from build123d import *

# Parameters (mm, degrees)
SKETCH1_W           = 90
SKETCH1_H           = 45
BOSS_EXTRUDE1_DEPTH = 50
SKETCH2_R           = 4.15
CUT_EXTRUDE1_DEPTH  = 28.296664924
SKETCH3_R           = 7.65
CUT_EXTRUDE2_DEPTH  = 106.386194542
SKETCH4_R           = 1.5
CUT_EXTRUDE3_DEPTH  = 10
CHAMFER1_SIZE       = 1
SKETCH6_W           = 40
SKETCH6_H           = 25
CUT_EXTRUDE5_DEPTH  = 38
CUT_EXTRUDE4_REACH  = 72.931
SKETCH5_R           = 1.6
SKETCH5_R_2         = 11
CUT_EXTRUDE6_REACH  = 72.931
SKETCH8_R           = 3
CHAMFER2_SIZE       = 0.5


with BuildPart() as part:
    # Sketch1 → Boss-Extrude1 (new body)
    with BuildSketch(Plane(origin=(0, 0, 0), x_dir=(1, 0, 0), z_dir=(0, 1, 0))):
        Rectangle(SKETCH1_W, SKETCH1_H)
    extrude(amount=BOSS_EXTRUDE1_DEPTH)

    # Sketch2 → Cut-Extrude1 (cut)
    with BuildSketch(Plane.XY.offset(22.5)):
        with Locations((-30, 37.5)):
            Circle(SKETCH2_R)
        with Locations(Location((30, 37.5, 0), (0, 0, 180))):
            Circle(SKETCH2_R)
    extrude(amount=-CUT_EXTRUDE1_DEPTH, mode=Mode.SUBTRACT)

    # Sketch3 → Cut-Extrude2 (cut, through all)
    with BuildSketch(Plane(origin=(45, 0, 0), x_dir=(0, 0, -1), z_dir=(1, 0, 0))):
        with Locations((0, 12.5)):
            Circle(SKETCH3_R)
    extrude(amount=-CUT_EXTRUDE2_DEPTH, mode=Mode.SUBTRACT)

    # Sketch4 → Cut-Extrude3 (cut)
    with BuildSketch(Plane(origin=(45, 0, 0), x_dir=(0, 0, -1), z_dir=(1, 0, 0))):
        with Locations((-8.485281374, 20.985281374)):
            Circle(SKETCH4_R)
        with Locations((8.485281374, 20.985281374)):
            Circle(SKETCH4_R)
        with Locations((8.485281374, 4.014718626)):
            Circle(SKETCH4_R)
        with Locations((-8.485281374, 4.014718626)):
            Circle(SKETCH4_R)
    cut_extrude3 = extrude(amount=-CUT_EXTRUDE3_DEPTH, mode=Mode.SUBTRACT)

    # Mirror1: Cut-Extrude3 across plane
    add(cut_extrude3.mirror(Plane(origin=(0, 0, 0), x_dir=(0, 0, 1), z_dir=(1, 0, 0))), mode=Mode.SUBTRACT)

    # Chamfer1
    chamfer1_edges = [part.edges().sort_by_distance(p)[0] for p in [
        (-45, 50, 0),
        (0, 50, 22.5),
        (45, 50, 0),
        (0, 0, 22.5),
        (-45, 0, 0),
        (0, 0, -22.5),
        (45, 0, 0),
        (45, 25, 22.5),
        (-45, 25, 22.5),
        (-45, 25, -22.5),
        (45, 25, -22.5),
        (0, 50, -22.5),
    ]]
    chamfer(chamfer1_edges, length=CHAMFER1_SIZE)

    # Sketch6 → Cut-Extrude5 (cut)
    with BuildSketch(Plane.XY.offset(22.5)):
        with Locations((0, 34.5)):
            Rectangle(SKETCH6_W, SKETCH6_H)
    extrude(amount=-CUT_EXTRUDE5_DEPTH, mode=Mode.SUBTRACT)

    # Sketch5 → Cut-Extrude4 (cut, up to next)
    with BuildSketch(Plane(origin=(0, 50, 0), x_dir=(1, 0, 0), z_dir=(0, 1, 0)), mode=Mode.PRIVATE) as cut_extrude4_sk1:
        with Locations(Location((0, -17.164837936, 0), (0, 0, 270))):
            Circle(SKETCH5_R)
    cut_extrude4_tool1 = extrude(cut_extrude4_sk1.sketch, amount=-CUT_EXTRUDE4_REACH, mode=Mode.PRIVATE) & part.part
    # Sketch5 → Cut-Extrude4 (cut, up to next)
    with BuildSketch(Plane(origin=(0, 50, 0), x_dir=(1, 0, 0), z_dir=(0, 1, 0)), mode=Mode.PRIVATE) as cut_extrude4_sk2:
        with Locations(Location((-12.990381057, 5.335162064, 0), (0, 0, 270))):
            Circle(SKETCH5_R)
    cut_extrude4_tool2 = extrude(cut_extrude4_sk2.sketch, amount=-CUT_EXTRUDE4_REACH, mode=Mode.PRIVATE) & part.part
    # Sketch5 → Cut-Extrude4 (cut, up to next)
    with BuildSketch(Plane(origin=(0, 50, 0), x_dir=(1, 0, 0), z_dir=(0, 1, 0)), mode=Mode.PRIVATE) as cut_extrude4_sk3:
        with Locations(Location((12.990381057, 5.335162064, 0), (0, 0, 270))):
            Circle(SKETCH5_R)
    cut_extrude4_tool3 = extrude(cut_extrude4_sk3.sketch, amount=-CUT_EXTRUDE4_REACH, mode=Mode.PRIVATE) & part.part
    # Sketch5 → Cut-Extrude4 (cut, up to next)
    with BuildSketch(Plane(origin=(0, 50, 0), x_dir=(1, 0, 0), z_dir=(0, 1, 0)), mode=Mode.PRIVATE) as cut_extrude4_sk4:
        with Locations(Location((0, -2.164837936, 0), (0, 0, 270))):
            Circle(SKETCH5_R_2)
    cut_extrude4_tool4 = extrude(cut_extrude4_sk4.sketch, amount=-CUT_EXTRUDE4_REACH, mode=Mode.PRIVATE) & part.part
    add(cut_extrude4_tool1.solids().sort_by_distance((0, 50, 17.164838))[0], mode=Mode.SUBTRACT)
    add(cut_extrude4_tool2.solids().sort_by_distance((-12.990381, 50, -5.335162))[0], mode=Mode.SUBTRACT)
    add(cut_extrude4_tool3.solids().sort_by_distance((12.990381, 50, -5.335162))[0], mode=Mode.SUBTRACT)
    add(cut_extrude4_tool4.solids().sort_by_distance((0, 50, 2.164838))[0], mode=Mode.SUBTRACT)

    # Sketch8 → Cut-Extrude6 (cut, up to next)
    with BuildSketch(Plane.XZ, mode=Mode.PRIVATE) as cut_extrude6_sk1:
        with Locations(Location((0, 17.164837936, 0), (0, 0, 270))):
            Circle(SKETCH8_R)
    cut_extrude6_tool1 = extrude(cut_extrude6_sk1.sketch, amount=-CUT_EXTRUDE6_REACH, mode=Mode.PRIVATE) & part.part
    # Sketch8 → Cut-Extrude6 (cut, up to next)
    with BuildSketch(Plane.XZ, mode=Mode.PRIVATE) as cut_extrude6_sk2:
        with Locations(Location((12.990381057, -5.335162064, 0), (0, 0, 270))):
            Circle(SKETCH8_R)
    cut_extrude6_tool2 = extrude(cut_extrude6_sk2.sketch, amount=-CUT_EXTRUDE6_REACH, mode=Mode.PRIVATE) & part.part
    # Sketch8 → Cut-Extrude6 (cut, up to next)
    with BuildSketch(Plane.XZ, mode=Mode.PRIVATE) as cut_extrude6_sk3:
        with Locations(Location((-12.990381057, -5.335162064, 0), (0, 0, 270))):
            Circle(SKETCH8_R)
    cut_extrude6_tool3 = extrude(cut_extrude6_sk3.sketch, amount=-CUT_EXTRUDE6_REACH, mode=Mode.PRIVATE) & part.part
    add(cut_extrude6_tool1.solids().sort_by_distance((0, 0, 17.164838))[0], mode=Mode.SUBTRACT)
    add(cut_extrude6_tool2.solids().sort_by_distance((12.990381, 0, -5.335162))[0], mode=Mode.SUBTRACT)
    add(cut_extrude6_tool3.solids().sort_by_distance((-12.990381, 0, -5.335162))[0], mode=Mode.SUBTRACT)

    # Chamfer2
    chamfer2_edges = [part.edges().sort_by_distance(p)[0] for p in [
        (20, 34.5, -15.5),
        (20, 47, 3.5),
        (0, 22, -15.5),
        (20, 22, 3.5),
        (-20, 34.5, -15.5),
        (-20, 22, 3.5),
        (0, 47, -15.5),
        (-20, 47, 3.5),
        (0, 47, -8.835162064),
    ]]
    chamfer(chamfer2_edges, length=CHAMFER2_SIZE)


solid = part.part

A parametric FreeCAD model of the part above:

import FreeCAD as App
import Part
import Sketcher

V = App.Vector
Q = App.Units.Quantity


def edges_at(feature, points):
    """Names of the edges that pass closest to the given points."""
    edges = feature.Shape.Edges
    near = lambda p: min(range(len(edges)), key=lambda i: edges[i].distToShape(Part.Vertex(*p))[0])
    return sorted({f"Edge{near(p) + 1}" for p in points})


def add_polygon(sketch, points):
    """Adds a closed chain of lines whose ends are joined by coincident constraints."""
    first, n = sketch.GeometryCount, len(points)
    for a, b in zip(points, points[1:] + points[:1]):
        sketch.addGeometry(Part.LineSegment(App.Vector(*a, 0), App.Vector(*b, 0)), False)
    for i in range(n):
        sketch.addConstraint(Sketcher.Constraint("Coincident", first + i, 2, first + (i + 1) % n, 1))

doc = App.newDocument("Part")
body = doc.addObject("PartDesign::Body", "Body")

sketch1 = body.newObject("Sketcher::SketchObject", "Sketch")
sketch1.AttachmentSupport = (doc.getObject("XZ_Plane"), [""])
sketch1.MapMode = "FlatFace"
add_polygon(sketch1, [(-45, -22), (-45, 22), (45, 22), (45, -22)])
sketch1.addConstraint(Sketcher.Constraint("Vertical", 0))
sketch1.addConstraint(Sketcher.Constraint("Horizontal", 1))
sketch1.addConstraint(Sketcher.Constraint("Vertical", 2))
sketch1.addConstraint(Sketcher.Constraint("Horizontal", 3))
sketch1.addConstraint(Sketcher.Constraint("Symmetric", 0, 2, 2, 2, -1, 1))
sketch1.addConstraint(Sketcher.Constraint("DistanceX", 1, 1, 1, 2, Q("90 mm")))
sketch1.addConstraint(Sketcher.Constraint("DistanceY", 0, 1, 0, 2, Q("45 mm")))
pad1 = body.newObject("PartDesign::Pad", "Pad")
pad1.Profile = sketch1
pad1.Length = 50
pad1.Reversed = True

sketch2 = body.newObject("Sketcher::SketchObject", "Sketch001")
sketch2.AttachmentSupport = (doc.getObject("XY_Plane"), [""])
sketch2.MapMode = "FlatFace"
sketch2.AttachmentOffset = App.Placement(V(0, 0, 22.5), App.Rotation())
sketch2.addGeometry(Part.Circle(V(-30, 37.5, 0), V(0, 0, 1), 4.2), False)
sketch2.addGeometry(Part.Circle(V(30, 37.5, 0), V(0, 0, 1), 4.2), False)
sketch2.addConstraint(Sketcher.Constraint("Equal", 0, 1))
sketch2.addConstraint(Sketcher.Constraint("Symmetric", 0, 3, 1, 3, -2))
sketch2.addConstraint(Sketcher.Constraint("Diameter", 0, Q("8.3 mm")))
sketch2.addConstraint(Sketcher.Constraint("DistanceX", 0, 3, -1, 1, Q("30 mm")))
sketch2.addConstraint(Sketcher.Constraint("DistanceY", -1, 1, 0, 3, Q("37.5 mm")))
pocket1 = body.newObject("PartDesign::Pocket", "Pocket")
pocket1.Profile = sketch2
pocket1.Length = 28.296665

sketch3 = body.newObject("Sketcher::SketchObject", "Sketch002")
sketch3.AttachmentSupport = (doc.getObject("YZ_Plane"), [""])
sketch3.MapMode = "FlatFace"
sketch3.AttachmentOffset = App.Placement(V(0, 0, 45), App.Rotation())
sketch3.addGeometry(Part.Circle(V(12, 0, 0), V(0, 0, 1), 8), False)
sketch3.addConstraint(Sketcher.Constraint("PointOnObject", 0, 3, -1))
sketch3.addConstraint(Sketcher.Constraint("Diameter", 0, Q("15.3 mm")))
sketch3.addConstraint(Sketcher.Constraint("DistanceX", -1, 1, 0, 3, Q("12.5 mm")))
pocket2 = body.newObject("PartDesign::Pocket", "Pocket001")
pocket2.Profile = sketch3
pocket2.Type = "ThroughAll"

sketch4 = body.newObject("Sketcher::SketchObject", "Sketch003")
sketch4.AttachmentSupport = (doc.getObject("YZ_Plane"), [""])
sketch4.MapMode = "FlatFace"
sketch4.AttachmentOffset = App.Placement(V(0, 0, 45), App.Rotation())
sketch4.addGeometry(Part.Circle(V(21, 8.5, 0), V(0, 0, 1), 1.5), False)
sketch4.addGeometry(Part.Circle(V(21, -8.5, 0), V(0, 0, 1), 1.5), False)
sketch4.addGeometry(Part.Circle(V(4, -8.5, 0), V(0, 0, 1), 1.5), False)
sketch4.addGeometry(Part.Circle(V(4, 8.5, 0), V(0, 0, 1), 1.5), False)
sketch4.addConstraint(Sketcher.Constraint("Equal", 0, 1))
sketch4.addConstraint(Sketcher.Constraint("Equal", 1, 2))
sketch4.addConstraint(Sketcher.Constraint("Equal", 2, 3))
sketch4.addConstraint(Sketcher.Constraint("Symmetric", 0, 3, 1, 3, -1))
sketch4.addConstraint(Sketcher.Constraint("Symmetric", 2, 3, 3, 3, -1))
sketch4.addConstraint(Sketcher.Constraint("Horizontal", 1, 3, 2, 3))
sketch4.addConstraint(Sketcher.Constraint("Diameter", 0, Q("3 mm")))
sketch4.addConstraint(Sketcher.Constraint("DistanceX", -1, 1, 0, 3, Q("20.985281 mm")))
sketch4.addConstraint(Sketcher.Constraint("DistanceY", -1, 1, 0, 3, Q("8.485281 mm")))
sketch4.addConstraint(Sketcher.Constraint("DistanceX", -1, 1, 2, 3, Q("4.014719 mm")))
pocket3 = body.newObject("PartDesign::Pocket", "Pocket002")
pocket3.Profile = sketch4
pocket3.Length = 10
doc.recompute()

mirrored = body.newObject("PartDesign::Mirrored", "Mirrored")
mirrored.Originals = [pocket3]
mirrored.MirrorPlane = (doc.getObject("YZ_Plane"), [""])
body.Tip = mirrored
doc.recompute()

chamfer = body.newObject("PartDesign::Chamfer", "Chamfer")
chamfer.Base = (mirrored, edges_at(mirrored, [
    (-45, 50, 0),
    (0, 50, 22.5),
    (45, 50, 0),
    (0, 0, 22.5),
    (-45, 0, 0),
    (0, 0, -22.5),
    (45, 0, 0),
    (45, 25, 22.5),
    (-45, 25, 22.5),
    (-45, 25, -22.5),
    (45, 25, -22.5),
    (0, 50, -22.5),
]))
chamfer.Size = 1

sketch5 = body.newObject("Sketcher::SketchObject", "Sketch004")
sketch5.AttachmentSupport = (doc.getObject("XY_Plane"), [""])
sketch5.MapMode = "FlatFace"
sketch5.AttachmentOffset = App.Placement(V(0, 0, 22.5), App.Rotation())
add_polygon(sketch5, [(-20, 47), (-20, 22), (20, 22), (20, 47)])
sketch5.addConstraint(Sketcher.Constraint("Vertical", 0))
sketch5.addConstraint(Sketcher.Constraint("Horizontal", 1))
sketch5.addConstraint(Sketcher.Constraint("Vertical", 2))
sketch5.addConstraint(Sketcher.Constraint("Horizontal", 3))
sketch5.addConstraint(Sketcher.Constraint("DistanceX", 1, 1, 1, 2, Q("40 mm")))
sketch5.addConstraint(Sketcher.Constraint("DistanceY", 0, 2, 0, 1, Q("25 mm")))
sketch5.addConstraint(Sketcher.Constraint("DistanceX", 0, 2, -1, 1, Q("20 mm")))
sketch5.addConstraint(Sketcher.Constraint("DistanceY", -1, 1, 0, 2, Q("22 mm")))
pocket4 = body.newObject("PartDesign::Pocket", "Pocket003")
pocket4.Profile = sketch5
pocket4.Length = 38

sketch6 = body.newObject("Sketcher::SketchObject", "Sketch005")
sketch6.AttachmentSupport = (doc.getObject("XZ_Plane"), [""])
sketch6.MapMode = "FlatFace"
sketch6.AttachmentOffset = App.Placement(V(0, 0, -50), App.Rotation())
sketch6.addGeometry(Part.Circle(V(0, 17.2, 0), V(0, 0, 1), 1.6), False)
sketch6.addConstraint(Sketcher.Constraint("PointOnObject", 0, 3, -2))
sketch6.addConstraint(Sketcher.Constraint("Diameter", 0, Q("3.2 mm")))
sketch6.addConstraint(Sketcher.Constraint("DistanceY", -1, 1, 0, 3, Q("17.164838 mm")))
pocket5 = body.newObject("PartDesign::Pocket", "Pocket004")
pocket5.Profile = sketch6
pocket5.Type = "UpToFirst"
pocket5.Reversed = True

sketch7 = body.newObject("Sketcher::SketchObject", "Sketch006")
sketch7.AttachmentSupport = (doc.getObject("XZ_Plane"), [""])
sketch7.MapMode = "FlatFace"
sketch7.AttachmentOffset = App.Placement(V(0, 0, -50), App.Rotation())
sketch7.addGeometry(Part.Circle(V(-13, -5.3, 0), V(0, 0, 1), 1.6), False)
sketch7.addConstraint(Sketcher.Constraint("Diameter", 0, Q("3.2 mm")))
sketch7.addConstraint(Sketcher.Constraint("DistanceX", 0, 3, -1, 1, Q("12.990381 mm")))
sketch7.addConstraint(Sketcher.Constraint("DistanceY", 0, 3, -1, 1, Q("5.335162 mm")))
pocket6 = body.newObject("PartDesign::Pocket", "Pocket005")
pocket6.Profile = sketch7
pocket6.Type = "UpToFirst"
pocket6.Reversed = True

sketch8 = body.newObject("Sketcher::SketchObject", "Sketch007")
sketch8.AttachmentSupport = (doc.getObject("XZ_Plane"), [""])
sketch8.MapMode = "FlatFace"
sketch8.AttachmentOffset = App.Placement(V(0, 0, -50), App.Rotation())
sketch8.addGeometry(Part.Circle(V(13, -5.3, 0), V(0, 0, 1), 1.6), False)
sketch8.addConstraint(Sketcher.Constraint("Diameter", 0, Q("3.2 mm")))
sketch8.addConstraint(Sketcher.Constraint("DistanceX", -1, 1, 0, 3, Q("12.990381 mm")))
sketch8.addConstraint(Sketcher.Constraint("DistanceY", 0, 3, -1, 1, Q("5.335162 mm")))
pocket7 = body.newObject("PartDesign::Pocket", "Pocket006")
pocket7.Profile = sketch8
pocket7.Type = "UpToFirst"
pocket7.Reversed = True

sketch9 = body.newObject("Sketcher::SketchObject", "Sketch008")
sketch9.AttachmentSupport = (doc.getObject("XZ_Plane"), [""])
sketch9.MapMode = "FlatFace"
sketch9.AttachmentOffset = App.Placement(V(0, 0, -50), App.Rotation())
sketch9.addGeometry(Part.Circle(V(0, 2, 0), V(0, 0, 1), 11), False)
sketch9.addConstraint(Sketcher.Constraint("PointOnObject", 0, 3, -2))
sketch9.addConstraint(Sketcher.Constraint("Diameter", 0, Q("22 mm")))
sketch9.addConstraint(Sketcher.Constraint("DistanceY", -1, 1, 0, 3, Q("2.164838 mm")))
pocket8 = body.newObject("PartDesign::Pocket", "Pocket007")
pocket8.Profile = sketch9
pocket8.Type = "UpToFirst"
pocket8.Reversed = True

sketch10 = body.newObject("Sketcher::SketchObject", "Sketch009")
sketch10.AttachmentSupport = (doc.getObject("XZ_Plane"), [""])
sketch10.MapMode = "FlatFace"
sketch10.addGeometry(Part.Circle(V(0, 17.2, 0), V(0, 0, 1), 3), False)
sketch10.addConstraint(Sketcher.Constraint("PointOnObject", 0, 3, -2))
sketch10.addConstraint(Sketcher.Constraint("Diameter", 0, Q("6 mm")))
sketch10.addConstraint(Sketcher.Constraint("DistanceY", -1, 1, 0, 3, Q("17.164838 mm")))
pocket9 = body.newObject("PartDesign::Pocket", "Pocket008")
pocket9.Profile = sketch10
pocket9.Type = "UpToFirst"

sketch11 = body.newObject("Sketcher::SketchObject", "Sketch010")
sketch11.AttachmentSupport = (doc.getObject("XZ_Plane"), [""])
sketch11.MapMode = "FlatFace"
sketch11.addGeometry(Part.Circle(V(13, -5.3, 0), V(0, 0, 1), 3), False)
sketch11.addConstraint(Sketcher.Constraint("Diameter", 0, Q("6 mm")))
sketch11.addConstraint(Sketcher.Constraint("DistanceX", -1, 1, 0, 3, Q("12.990381 mm")))
sketch11.addConstraint(Sketcher.Constraint("DistanceY", 0, 3, -1, 1, Q("5.335162 mm")))
pocket10 = body.newObject("PartDesign::Pocket", "Pocket009")
pocket10.Profile = sketch11
pocket10.Length = 22

sketch12 = body.newObject("Sketcher::SketchObject", "Sketch011")
sketch12.AttachmentSupport = (doc.getObject("XZ_Plane"), [""])
sketch12.MapMode = "FlatFace"
sketch12.addGeometry(Part.Circle(V(-13, -5.3, 0), V(0, 0, 1), 3), False)
sketch12.addConstraint(Sketcher.Constraint("Diameter", 0, Q("6 mm")))
sketch12.addConstraint(Sketcher.Constraint("DistanceX", 0, 3, -1, 1, Q("12.990381 mm")))
sketch12.addConstraint(Sketcher.Constraint("DistanceY", 0, 3, -1, 1, Q("5.335162 mm")))
pocket11 = body.newObject("PartDesign::Pocket", "Pocket010")
pocket11.Profile = sketch12
pocket11.Length = 22
doc.recompute()

chamfer2 = body.newObject("PartDesign::Chamfer", "Chamfer001")
chamfer2.Base = (pocket11, edges_at(pocket11, [
    (20, 34.5, -15.5),
    (20, 47, 3.5),
    (0, 22, -15.5),
    (20, 22, 3.5),
    (-20, 34.5, -15.5),
    (-20, 22, 3.5),
    (0, 47, -15.5),
    (-20, 47, 3.5),
    (0, 47, -8.835),
]))
chamfer2.Size = 0.5

doc.recompute()
